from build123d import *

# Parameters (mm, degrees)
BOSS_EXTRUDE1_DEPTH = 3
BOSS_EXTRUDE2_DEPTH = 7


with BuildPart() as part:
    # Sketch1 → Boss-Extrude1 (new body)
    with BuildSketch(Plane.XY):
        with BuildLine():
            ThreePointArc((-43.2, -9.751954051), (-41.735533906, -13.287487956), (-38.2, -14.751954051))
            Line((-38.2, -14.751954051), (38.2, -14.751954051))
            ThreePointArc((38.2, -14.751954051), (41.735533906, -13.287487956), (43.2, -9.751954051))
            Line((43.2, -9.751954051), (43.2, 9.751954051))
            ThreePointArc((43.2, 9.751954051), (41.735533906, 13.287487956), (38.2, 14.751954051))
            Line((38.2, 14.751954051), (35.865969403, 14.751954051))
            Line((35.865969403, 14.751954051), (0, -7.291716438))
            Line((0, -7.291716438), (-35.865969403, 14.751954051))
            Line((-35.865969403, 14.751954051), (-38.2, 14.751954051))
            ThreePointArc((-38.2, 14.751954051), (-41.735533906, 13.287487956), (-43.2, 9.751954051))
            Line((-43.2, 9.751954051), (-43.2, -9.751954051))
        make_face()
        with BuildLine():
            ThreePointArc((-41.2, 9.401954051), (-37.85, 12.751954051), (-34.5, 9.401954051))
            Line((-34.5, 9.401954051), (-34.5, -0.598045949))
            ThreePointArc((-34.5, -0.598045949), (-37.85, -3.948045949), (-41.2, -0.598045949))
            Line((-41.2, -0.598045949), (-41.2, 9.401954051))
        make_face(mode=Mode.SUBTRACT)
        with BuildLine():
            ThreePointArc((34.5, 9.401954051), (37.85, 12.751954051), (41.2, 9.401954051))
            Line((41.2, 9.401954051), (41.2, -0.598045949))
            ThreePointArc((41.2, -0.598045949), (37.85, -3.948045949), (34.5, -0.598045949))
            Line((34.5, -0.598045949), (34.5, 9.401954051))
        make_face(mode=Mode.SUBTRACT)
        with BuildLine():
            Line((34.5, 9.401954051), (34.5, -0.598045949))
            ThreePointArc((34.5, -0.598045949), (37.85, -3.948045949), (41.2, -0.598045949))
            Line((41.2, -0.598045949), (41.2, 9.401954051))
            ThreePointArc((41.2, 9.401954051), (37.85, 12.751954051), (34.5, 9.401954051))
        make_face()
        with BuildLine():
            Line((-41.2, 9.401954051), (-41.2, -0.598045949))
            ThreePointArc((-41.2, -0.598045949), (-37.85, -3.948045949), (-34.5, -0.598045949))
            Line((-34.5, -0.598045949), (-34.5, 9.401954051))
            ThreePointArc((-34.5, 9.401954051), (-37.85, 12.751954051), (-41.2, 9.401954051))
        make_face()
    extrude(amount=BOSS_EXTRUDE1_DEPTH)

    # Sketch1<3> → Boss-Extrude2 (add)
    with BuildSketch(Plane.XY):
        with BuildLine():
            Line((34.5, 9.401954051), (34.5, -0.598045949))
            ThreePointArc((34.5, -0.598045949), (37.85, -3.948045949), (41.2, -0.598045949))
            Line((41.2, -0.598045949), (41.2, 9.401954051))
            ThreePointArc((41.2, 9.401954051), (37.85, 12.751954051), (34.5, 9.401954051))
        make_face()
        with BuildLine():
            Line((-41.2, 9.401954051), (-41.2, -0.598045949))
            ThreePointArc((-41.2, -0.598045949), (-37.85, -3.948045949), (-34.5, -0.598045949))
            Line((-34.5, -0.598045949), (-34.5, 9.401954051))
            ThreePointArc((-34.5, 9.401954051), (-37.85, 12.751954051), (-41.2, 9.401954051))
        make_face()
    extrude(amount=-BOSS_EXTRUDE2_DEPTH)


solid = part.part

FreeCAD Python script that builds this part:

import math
import FreeCAD as App
import Part
import Sketcher
Q = App.Units.Quantity

doc = App.newDocument("Part")
body = doc.addObject("PartDesign::Body", "Body")

# Sketch on XY plane
sketch1 = body.newObject("Sketcher::SketchObject", "Sketch")
sketch1.AttachmentSupport = (doc.getObject("XY_Plane"), [""])
sketch1.MapMode = "FlatFace"
sketch1.addGeometry([
    Part.ArcOfCircle(Part.Circle(App.Vector(-38.2, -9.751954, 0), App.Vector(0, 0, 1), 5), math.radians(-180), math.radians(-90)),  # 0
    Part.LineSegment(App.Vector(-38.2, -14.751954, 0), App.Vector(38.2, -14.751954, 0)),  # 1
    Part.ArcOfCircle(Part.Circle(App.Vector(38.2, -9.751954, 0), App.Vector(0, 0, 1), 5), math.radians(-90), math.radians(0)),  # 2
    Part.LineSegment(App.Vector(43.2, -9.751954, 0), App.Vector(43.2, 9.751954, 0)),  # 3
    Part.ArcOfCircle(Part.Circle(App.Vector(38.2, 9.751954, 0), App.Vector(0, 0, 1), 5), math.radians(0), math.radians(90)),  # 4
    Part.LineSegment(App.Vector(38.2, 14.751954, 0), App.Vector(35.865969, 14.751954, 0)),  # 5
    Part.LineSegment(App.Vector(35.865969, 14.751954, 0), App.Vector(0, -7.291716, 0)),  # 6
    Part.LineSegment(App.Vector(0, -7.291716, 0), App.Vector(-35.865969, 14.751954, 0)),  # 7
    Part.LineSegment(App.Vector(-35.865969, 14.751954, 0), App.Vector(-38.2, 14.751954, 0)),  # 8
    Part.ArcOfCircle(Part.Circle(App.Vector(-38.2, 9.751954, 0), App.Vector(0, 0, 1), 5), math.radians(90), math.radians(180)),  # 9
    Part.LineSegment(App.Vector(-43.2, 9.751954, 0), App.Vector(-43.2, -9.751954, 0)),  # 10
], False)
sketch1.addConstraint([
    Sketcher.Constraint("Tangent", 0, 2, 1, 1),
    Sketcher.Constraint("Tangent", 1, 2, 2, 1),
    Sketcher.Constraint("Tangent", 2, 2, 3, 1),
    Sketcher.Constraint("Tangent", 3, 2, 4, 1),
    Sketcher.Constraint("Tangent", 4, 2, 5, 1),
    Sketcher.Constraint("Coincident", 5, 2, 6, 1),
    Sketcher.Constraint("Coincident", 6, 2, 7, 1),
    Sketcher.Constraint("Coincident", 7, 2, 8, 1),
    Sketcher.Constraint("Tangent", 8, 2, 9, 1),
    Sketcher.Constraint("Tangent", 9, 2, 10, 1),
    Sketcher.Constraint("Tangent", 10, 2, 0, 1),
    Sketcher.Constraint("Horizontal", 1),
    Sketcher.Constraint("Vertical", 3),
    Sketcher.Constraint("Horizontal", 5),
    Sketcher.Constraint("Horizontal", 8),
    Sketcher.Constraint("Vertical", 10),
    Sketcher.Constraint("Equal", 0, 2),
    Sketcher.Constraint("Equal", 2, 4),
    Sketcher.Constraint("Equal", 4, 9),
    Sketcher.Constraint("Symmetric", 0, 3, 4, 3, -1, 1),
    Sketcher.Constraint("Symmetric", 5, 2, 7, 2, -2),
    Sketcher.Constraint("PointOnObject", 6, 2, -2),
    Sketcher.Constraint("Radius", 0, Q("5 mm")),
    Sketcher.Constraint("DistanceX", 1, 1, 1, 2, Q("76.4 mm")),
    Sketcher.Constraint("DistanceX", 5, 2, 5, 1, Q("2.334031 mm")),
    Sketcher.Constraint("DistanceY", 3, 1, 3, 2, Q("19.503908 mm")),
    Sketcher.Constraint("Distance", 6, Q("42.098589 mm")),
])
pad1 = body.newObject("PartDesign::Pad", "Pad")
pad1.Profile = sketch1
pad1.Length = 3

# Sketch on XY plane
sketch2 = body.newObject("Sketcher::SketchObject", "Sketch001")
sketch2.AttachmentSupport = (doc.getObject("XY_Plane"), [""])
sketch2.MapMode = "FlatFace"
sketch2.addGeometry([
    Part.LineSegment(App.Vector(34.5, 9.401954, 0), App.Vector(34.5, -0.598046, 0)),  # 0
    Part.ArcOfCircle(Part.Circle(App.Vector(37.85, -0.598046, 0), App.Vector(0, 0, 1), 3.35), math.radians(180), math.radians(360)),  # 1
    Part.LineSegment(App.Vector(41.2, -0.598046, 0), App.Vector(41.2, 9.401954, 0)),  # 2
    Part.ArcOfCircle(Part.Circle(App.Vector(37.85, 9.401954, 0), App.Vector(0, 0, 1), 3.35), math.radians(0), math.radians(180)),  # 3
    Part.LineSegment(App.Vector(-41.2, 9.401954, 0), App.Vector(-41.2, -0.598046, 0)),  # 4
    Part.ArcOfCircle(Part.Circle(App.Vector(-37.85, -0.598046, 0), App.Vector(0, 0, 1), 3.35), math.radians(180), math.radians(360)),  # 5
    Part.LineSegment(App.Vector(-34.5, -0.598046, 0), App.Vector(-34.5, 9.401954, 0)),  # 6
    Part.ArcOfCircle(Part.Circle(App.Vector(-37.85, 9.401954, 0), App.Vector(0, 0, 1), 3.35), math.radians(0), math.radians(180)),  # 7
], False)
sketch2.addConstraint([
    Sketcher.Constraint("Tangent", 0, 2, 1, 1),
    Sketcher.Constraint("Tangent", 1, 2, 2, 1),
    Sketcher.Constraint("Tangent", 2, 2, 3, 1),
    Sketcher.Constraint("Tangent", 3, 2, 0, 1),
    Sketcher.Constraint("Tangent", 4, 2, 5, 1),
    Sketcher.Constraint("Tangent", 5, 2, 6, 1),
    Sketcher.Constraint("Tangent", 6, 2, 7, 1),
    Sketcher.Constraint("Tangent", 7, 2, 4, 1),
    Sketcher.Constraint("Vertical", 0),
    Sketcher.Constraint("Vertical", 2),
    Sketcher.Constraint("Vertical", 4),
    Sketcher.Constraint("Vertical", 6),
    Sketcher.Constraint("Equal", 3, 5),
    Sketcher.Constraint("Symmetric", 1, 3, 5, 3, -2),
    Sketcher.Constraint("Horizontal", 3, 3, 7, 3),
    Sketcher.Constraint("DistanceY", 0, 2, 0, 1, Q("10 mm")),
    Sketcher.Constraint("Radius", 1, Q("3.35 mm")),
    Sketcher.Constraint("DistanceX", 5, 2, 0, 2, Q("69 mm")),
    Sketcher.Constraint("DistanceY", 1, 3, -1, 1, Q("0.598046 mm")),
])
pad2 = body.newObject("PartDesign::Pad", "Pad001")
pad2.Profile = sketch2
pad2.Length = 7
pad2.Reversed = True

doc.recompute()
